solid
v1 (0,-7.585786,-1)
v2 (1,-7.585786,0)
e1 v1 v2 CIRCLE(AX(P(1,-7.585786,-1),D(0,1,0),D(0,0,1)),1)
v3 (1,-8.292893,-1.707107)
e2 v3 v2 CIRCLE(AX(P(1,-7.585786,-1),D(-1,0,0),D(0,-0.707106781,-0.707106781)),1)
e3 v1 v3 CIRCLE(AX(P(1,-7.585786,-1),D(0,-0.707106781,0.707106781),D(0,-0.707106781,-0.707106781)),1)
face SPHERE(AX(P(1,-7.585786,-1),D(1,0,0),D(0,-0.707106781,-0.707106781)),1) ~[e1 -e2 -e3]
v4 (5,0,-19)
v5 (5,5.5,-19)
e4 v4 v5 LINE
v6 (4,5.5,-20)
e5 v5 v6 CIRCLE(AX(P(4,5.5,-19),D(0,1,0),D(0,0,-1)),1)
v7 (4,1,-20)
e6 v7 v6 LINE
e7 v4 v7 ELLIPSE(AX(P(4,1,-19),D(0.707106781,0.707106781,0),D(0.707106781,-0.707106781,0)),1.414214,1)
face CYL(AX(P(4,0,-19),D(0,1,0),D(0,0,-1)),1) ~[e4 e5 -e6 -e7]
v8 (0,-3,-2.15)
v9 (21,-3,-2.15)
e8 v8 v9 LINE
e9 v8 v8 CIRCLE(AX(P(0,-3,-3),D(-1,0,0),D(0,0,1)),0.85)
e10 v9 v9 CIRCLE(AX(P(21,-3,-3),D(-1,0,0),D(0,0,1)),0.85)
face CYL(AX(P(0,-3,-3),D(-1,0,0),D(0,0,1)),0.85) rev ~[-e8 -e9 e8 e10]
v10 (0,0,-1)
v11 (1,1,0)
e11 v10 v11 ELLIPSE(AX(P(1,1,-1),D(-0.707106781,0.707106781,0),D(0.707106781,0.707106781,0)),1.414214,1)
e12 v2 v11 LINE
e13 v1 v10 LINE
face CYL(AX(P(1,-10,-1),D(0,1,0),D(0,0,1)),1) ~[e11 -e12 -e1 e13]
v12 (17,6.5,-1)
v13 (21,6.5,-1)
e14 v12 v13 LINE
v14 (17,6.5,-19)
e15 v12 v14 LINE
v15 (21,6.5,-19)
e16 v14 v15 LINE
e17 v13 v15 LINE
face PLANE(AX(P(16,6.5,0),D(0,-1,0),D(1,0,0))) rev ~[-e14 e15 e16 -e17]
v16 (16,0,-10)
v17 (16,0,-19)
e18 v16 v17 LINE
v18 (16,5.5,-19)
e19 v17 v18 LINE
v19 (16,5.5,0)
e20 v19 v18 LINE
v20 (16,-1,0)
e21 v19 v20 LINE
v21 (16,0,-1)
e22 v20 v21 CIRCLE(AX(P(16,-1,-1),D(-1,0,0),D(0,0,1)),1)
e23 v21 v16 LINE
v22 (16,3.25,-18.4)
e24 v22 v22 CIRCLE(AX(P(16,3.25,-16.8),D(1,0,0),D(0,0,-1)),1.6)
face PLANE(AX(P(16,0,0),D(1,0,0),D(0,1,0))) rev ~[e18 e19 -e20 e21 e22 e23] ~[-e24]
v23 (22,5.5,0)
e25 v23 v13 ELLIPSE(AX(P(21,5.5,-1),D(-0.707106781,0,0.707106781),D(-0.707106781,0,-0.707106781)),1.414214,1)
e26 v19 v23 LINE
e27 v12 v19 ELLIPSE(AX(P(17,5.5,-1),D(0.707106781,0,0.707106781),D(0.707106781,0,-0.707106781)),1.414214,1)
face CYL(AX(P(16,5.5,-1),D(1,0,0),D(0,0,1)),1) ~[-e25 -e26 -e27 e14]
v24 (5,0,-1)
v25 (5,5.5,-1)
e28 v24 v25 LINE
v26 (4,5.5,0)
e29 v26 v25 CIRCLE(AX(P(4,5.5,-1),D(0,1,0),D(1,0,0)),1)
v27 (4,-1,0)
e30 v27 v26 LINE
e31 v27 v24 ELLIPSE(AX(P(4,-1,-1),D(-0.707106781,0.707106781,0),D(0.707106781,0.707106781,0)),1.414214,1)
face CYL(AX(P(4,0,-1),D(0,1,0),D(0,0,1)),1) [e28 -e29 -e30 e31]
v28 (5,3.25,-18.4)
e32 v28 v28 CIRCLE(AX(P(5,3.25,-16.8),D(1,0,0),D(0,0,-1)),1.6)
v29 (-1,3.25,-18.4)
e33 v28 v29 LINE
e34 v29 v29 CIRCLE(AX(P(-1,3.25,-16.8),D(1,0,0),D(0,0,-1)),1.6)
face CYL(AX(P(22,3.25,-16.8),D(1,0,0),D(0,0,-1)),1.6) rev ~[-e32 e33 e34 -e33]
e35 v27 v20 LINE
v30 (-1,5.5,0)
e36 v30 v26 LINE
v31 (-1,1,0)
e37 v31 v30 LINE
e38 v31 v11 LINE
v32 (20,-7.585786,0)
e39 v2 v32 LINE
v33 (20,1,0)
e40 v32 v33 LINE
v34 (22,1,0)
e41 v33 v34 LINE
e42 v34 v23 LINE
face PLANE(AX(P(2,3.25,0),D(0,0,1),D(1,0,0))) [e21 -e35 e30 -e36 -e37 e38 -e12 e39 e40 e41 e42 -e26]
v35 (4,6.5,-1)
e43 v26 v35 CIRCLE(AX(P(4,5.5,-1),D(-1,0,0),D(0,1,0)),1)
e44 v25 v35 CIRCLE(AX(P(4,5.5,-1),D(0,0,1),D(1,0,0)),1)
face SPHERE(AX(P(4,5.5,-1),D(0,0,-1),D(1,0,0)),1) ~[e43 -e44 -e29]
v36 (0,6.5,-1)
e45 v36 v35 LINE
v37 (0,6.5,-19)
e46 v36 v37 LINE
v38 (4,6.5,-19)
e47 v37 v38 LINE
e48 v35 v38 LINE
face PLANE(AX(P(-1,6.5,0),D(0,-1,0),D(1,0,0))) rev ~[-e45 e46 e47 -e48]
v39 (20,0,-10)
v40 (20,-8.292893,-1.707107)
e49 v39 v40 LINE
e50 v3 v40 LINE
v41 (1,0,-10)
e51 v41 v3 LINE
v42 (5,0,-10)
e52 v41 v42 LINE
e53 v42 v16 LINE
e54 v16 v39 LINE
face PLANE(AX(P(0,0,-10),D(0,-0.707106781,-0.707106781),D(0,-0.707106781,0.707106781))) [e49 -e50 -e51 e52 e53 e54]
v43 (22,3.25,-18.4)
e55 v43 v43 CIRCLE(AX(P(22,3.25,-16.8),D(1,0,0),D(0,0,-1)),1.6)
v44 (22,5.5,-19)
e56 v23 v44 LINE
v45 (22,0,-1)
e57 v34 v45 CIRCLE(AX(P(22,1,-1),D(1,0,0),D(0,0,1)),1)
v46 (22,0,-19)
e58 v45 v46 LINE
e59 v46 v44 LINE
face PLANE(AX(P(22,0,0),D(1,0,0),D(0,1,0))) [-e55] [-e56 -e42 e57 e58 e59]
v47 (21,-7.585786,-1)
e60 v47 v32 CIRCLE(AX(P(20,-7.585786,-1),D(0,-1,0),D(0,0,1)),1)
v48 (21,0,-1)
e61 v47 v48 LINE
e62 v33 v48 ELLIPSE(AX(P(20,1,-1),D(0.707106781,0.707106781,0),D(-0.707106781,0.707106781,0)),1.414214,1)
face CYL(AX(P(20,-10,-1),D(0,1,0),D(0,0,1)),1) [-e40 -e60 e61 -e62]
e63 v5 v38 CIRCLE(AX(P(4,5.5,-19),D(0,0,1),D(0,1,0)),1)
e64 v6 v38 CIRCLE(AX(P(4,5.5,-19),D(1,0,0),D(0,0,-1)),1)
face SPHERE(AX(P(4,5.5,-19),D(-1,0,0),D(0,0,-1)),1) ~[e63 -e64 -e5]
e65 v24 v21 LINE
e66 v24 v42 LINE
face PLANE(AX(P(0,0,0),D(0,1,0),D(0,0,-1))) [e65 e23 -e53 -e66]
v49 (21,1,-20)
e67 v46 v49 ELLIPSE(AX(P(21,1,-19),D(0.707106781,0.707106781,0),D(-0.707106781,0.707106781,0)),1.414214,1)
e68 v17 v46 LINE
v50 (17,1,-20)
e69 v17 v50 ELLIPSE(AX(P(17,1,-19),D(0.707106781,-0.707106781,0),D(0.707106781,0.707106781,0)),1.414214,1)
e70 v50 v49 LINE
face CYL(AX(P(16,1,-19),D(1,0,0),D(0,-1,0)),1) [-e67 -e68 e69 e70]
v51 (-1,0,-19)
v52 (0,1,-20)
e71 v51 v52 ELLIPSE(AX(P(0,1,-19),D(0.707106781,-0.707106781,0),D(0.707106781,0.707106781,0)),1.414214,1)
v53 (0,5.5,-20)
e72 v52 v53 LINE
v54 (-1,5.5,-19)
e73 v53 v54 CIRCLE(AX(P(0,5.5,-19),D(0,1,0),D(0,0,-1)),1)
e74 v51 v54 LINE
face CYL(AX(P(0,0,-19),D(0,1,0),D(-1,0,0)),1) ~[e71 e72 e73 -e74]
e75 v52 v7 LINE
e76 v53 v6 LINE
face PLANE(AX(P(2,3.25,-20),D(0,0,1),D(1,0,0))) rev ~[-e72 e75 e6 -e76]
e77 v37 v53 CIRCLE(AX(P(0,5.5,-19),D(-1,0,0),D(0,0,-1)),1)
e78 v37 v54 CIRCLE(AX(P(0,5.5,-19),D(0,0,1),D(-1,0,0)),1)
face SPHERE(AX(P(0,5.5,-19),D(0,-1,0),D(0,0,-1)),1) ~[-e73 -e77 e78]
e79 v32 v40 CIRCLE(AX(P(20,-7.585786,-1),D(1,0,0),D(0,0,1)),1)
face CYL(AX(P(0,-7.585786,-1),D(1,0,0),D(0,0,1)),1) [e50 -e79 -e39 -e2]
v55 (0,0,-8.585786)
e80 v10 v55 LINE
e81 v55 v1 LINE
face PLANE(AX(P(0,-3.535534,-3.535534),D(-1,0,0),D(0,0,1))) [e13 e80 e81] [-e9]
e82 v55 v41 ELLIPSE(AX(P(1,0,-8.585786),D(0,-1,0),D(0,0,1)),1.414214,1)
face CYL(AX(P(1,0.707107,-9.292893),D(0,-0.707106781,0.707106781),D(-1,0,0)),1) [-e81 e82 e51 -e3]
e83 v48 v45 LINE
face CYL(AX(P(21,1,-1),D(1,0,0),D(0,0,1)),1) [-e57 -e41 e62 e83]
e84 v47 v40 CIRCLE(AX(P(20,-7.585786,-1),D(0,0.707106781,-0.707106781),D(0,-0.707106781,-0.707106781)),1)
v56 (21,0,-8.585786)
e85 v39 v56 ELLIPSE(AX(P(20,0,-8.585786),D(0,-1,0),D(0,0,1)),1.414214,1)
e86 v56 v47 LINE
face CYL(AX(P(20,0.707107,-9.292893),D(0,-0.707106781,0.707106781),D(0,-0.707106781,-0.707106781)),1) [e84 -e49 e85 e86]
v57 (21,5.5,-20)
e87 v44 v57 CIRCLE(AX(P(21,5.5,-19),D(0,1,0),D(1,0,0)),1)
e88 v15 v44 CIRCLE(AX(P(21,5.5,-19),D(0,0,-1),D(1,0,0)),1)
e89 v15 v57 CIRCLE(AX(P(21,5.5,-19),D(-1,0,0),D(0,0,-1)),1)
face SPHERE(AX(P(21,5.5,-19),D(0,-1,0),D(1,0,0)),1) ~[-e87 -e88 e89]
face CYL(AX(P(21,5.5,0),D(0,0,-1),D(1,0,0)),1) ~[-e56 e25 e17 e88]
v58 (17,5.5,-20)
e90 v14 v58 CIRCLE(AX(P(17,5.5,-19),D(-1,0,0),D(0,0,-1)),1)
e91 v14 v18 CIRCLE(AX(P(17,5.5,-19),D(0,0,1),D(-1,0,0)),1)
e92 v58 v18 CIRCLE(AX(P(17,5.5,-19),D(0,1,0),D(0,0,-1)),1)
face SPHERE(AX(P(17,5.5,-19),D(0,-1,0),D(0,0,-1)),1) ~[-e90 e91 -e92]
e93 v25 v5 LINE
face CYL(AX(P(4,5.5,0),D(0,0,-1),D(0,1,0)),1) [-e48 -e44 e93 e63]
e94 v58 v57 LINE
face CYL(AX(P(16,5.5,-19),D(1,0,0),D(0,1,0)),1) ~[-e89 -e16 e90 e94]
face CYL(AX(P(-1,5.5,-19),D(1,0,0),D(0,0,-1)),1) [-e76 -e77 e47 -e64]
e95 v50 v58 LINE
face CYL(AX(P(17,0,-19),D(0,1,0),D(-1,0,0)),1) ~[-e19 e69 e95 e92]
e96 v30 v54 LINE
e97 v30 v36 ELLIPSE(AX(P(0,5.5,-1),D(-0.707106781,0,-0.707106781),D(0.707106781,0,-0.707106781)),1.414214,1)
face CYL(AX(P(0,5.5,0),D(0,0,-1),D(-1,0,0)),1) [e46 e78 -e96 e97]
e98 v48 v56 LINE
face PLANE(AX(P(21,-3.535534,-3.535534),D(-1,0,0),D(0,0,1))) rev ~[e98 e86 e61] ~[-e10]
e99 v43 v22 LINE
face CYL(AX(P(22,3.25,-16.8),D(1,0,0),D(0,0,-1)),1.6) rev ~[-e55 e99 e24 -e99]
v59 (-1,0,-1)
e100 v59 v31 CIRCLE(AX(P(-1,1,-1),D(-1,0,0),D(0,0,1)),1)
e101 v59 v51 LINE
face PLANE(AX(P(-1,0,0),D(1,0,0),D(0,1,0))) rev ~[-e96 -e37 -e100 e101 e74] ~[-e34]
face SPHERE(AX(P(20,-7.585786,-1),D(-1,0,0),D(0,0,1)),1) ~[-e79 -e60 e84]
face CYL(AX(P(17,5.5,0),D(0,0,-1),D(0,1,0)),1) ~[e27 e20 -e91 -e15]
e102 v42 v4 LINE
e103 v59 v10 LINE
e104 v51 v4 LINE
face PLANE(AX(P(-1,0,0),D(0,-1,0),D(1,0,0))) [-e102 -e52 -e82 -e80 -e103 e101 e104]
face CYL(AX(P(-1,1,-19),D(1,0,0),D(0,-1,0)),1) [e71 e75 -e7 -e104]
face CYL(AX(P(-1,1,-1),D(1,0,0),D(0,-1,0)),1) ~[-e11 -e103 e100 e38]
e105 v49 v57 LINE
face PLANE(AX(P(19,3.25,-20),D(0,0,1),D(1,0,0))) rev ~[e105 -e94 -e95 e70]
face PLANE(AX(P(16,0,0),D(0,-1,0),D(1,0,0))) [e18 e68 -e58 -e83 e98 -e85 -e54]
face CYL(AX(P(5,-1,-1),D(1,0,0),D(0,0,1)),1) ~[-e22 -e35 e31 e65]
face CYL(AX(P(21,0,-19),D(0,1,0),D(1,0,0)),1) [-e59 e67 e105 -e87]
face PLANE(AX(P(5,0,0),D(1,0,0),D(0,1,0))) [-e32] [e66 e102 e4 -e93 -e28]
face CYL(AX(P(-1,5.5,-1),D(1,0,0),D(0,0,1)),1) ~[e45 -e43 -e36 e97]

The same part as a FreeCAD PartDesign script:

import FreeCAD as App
import Part
import Sketcher
from FreeCAD import Vector


def edges_at(feature, points):
    """Names of the edges that pass closest to the given points."""
    edges = feature.Shape.Edges
    near = lambda p: min(range(len(edges)), key=lambda i: edges[i].distToShape(Part.Vertex(*p))[0])
    return sorted({f"Edge{near(p) + 1}" for p in points})


def add_polygon(sketch, points):
    """Adds a closed chain of lines whose ends are joined by coincident constraints."""
    first, n = sketch.GeometryCount, len(points)
    for a, b in zip(points, points[1:] + points[:1]):
        sketch.addGeometry(Part.LineSegment(App.Vector(*a, 0), App.Vector(*b, 0)), False)
    for i in range(n):
        sketch.addConstraint(Sketcher.Constraint("Coincident", first + i, 2, first + (i + 1) % n, 1))

doc = App.newDocument("Part")
params = doc.addObject("Spreadsheet::Sheet", "Params")
for row, (alias, value) in enumerate([
    ("sketch1_width", "10 mm"),
    ("pad1_length", "21 mm"),
    ("sketch2_diameter", "1.7 mm"),
    ("sketch3_width", "6 mm"),
    ("sketch3_height", "6.5 mm"),
    ("pad2_length", "20 mm"),
    ("sketch4_diameter", "3.2 mm"),
    ("fillet_radius", "1 mm"),
], start=1):
    params.set(f"A{row}", alias)
    params.set(f"B{row}", "=" + value)
    params.setAlias(f"B{row}", alias)

body = doc.addObject("PartDesign::Body", "Body")

# Sketch on YZ plane
sketch1 = body.newObject("Sketcher::SketchObject", "Sketch")
sketch1.AttachmentSupport = (doc.getObject("YZ_Plane"), [""])
sketch1.MapMode = "FlatFace"
add_polygon(sketch1, [(0, -10), (0, 0), (-10, 0)])  # lines 0-2
sketch1.addConstraint([
    Sketcher.Constraint("Vertical", 0),
    Sketcher.Constraint("Horizontal", 1),
    Sketcher.Constraint("Coincident", 0, 2, -1, 1),
    Sketcher.Constraint("Equal", 1, 0),
    Sketcher.Constraint("DistanceX", 1, 2, 1, 1, 10.0),
])
sketch1.setExpression("Constraints[7]", "Params.sketch1_width")
pad1 = body.newObject("PartDesign::Pad", "Pad")
pad1.Profile = sketch1
pad1.setExpression("Length", "Params.pad1_length")

# Sketch on YZ plane
sketch2 = body.newObject("Sketcher::SketchObject", "Sketch001")
sketch2.AttachmentSupport = (doc.getObject("YZ_Plane"), [""])
sketch2.MapMode = "FlatFace"
sketch2.addGeometry(Part.Circle(Vector(-3, -3, 0), Vector(0, 0, 1), 0.8), False)
sketch2.addConstraint([
    Sketcher.Constraint("Diameter", 0, 1.7),
    Sketcher.Constraint("DistanceX", 0, 3, -1, 1, 3.0),
    Sketcher.Constraint("DistanceY", 0, 3, -1, 1, 3.0),
])
sketch2.setExpression("Constraints[0]", "Params.sketch2_diameter")
pocket1 = body.newObject("PartDesign::Pocket", "Pocket")
pocket1.Profile = sketch2
pocket1.Type = "ThroughAll"
pocket1.Reversed = True

# Sketch on XY plane
sketch3 = body.newObject("Sketcher::SketchObject", "Sketch002")
sketch3.AttachmentSupport = (doc.getObject("XY_Plane"), [""])
sketch3.MapMode = "FlatFace"
add_polygon(sketch3, [(-1, 6), (-1, 0), (5, 0), (5, 6)])  # lines 0-3
add_polygon(sketch3, [(16, 6), (16, 0), (22, 0), (22, 6)])  # lines 4-7
sketch3.addConstraint([
    Sketcher.Constraint("Vertical", 0),
    Sketcher.Constraint("Horizontal", 1),
    Sketcher.Constraint("Vertical", 2),
    Sketcher.Constraint("Horizontal", 3),
    Sketcher.Constraint("Vertical", 4),
    Sketcher.Constraint("Horizontal", 5),
    Sketcher.Constraint("Vertical", 6),
    Sketcher.Constraint("Horizontal", 7),
    Sketcher.Constraint("PointOnObject", 0, 2, -1),
    Sketcher.Constraint("PointOnObject", 4, 2, -1),
    Sketcher.Constraint("Horizontal", 3, 2, 6, 2),
    Sketcher.Constraint("Equal", 3, 5),
    Sketcher.Constraint("DistanceX", 1, 1, 1, 2, 6.0),
    Sketcher.Constraint("DistanceY", 0, 2, 0, 1, 6.5),
    Sketcher.Constraint("DistanceX", 0, 2, -1, 1, 1.0),
    Sketcher.Constraint("DistanceX", -1, 1, 4, 2, 16.0),
])
sketch3.setExpression("Constraints[20]", "Params.sketch3_width")
sketch3.setExpression("Constraints[21]", "Params.sketch3_height")
pad2 = body.newObject("PartDesign::Pad", "Pad001")
pad2.Profile = sketch3
pad2.setExpression("Length", "Params.pad2_length")
pad2.Reversed = True

# Sketch on YZ plane
sketch4 = body.newObject("Sketcher::SketchObject", "Sketch003")
sketch4.AttachmentSupport = (doc.getObject("YZ_Plane"), [""])
sketch4.MapMode = "FlatFace"
sketch4.AttachmentOffset = App.Placement(Vector(0, 0, 22), App.Rotation())
sketch4.addGeometry(Part.Circle(Vector(3.2, -16.8, 0), Vector(0, 0, 1), 1.6), False)
sketch4.addConstraint([
    Sketcher.Constraint("Diameter", 0, 3.2),
    Sketcher.Constraint("DistanceY", 0, 3, -1, 1, 16.8),
    Sketcher.Constraint("DistanceX", -1, 1, 0, 3, 3.25),
])
sketch4.setExpression("Constraints[0]", "Params.sketch4_diameter")
pocket2 = body.newObject("PartDesign::Pocket", "Pocket001")
pocket2.Profile = sketch4
pocket2.Type = "ThroughAll"
doc.recompute()

fillet = body.newObject("PartDesign::Fillet", "Fillet")
fillet.Base = (pocket2, edges_at(pocket2, [
    (21, -5, 0),
    (21, -5, -5),
    (2, 0, -20),
    (-1, 3.25, -20),
    (2, 6.5, -20),
    (-1, 6.5, -10),
    (5, 3.25, -20),
    (5, 6.5, -10),
    (-0.5, 0, 0),
    (5, 3.25, 0),
    (2, 6.5, 0),
    (10.5, 0, 0),
    (22, 3.25, -20),
    (22, 6.5, -10),
    (19, 0, -20),
    (16, 3.25, -20),
    (19, 6.5, -20),
    (16, 6.5, -10),
    (19, 6.5, 0),
    (21.5, 0, 0),
    (0, -5, -5),
    (0, -5, 0),
    (10.5, -10, 0),
]))
fillet.setExpression("Radius", "Params.fillet_radius")

doc.recompute()
